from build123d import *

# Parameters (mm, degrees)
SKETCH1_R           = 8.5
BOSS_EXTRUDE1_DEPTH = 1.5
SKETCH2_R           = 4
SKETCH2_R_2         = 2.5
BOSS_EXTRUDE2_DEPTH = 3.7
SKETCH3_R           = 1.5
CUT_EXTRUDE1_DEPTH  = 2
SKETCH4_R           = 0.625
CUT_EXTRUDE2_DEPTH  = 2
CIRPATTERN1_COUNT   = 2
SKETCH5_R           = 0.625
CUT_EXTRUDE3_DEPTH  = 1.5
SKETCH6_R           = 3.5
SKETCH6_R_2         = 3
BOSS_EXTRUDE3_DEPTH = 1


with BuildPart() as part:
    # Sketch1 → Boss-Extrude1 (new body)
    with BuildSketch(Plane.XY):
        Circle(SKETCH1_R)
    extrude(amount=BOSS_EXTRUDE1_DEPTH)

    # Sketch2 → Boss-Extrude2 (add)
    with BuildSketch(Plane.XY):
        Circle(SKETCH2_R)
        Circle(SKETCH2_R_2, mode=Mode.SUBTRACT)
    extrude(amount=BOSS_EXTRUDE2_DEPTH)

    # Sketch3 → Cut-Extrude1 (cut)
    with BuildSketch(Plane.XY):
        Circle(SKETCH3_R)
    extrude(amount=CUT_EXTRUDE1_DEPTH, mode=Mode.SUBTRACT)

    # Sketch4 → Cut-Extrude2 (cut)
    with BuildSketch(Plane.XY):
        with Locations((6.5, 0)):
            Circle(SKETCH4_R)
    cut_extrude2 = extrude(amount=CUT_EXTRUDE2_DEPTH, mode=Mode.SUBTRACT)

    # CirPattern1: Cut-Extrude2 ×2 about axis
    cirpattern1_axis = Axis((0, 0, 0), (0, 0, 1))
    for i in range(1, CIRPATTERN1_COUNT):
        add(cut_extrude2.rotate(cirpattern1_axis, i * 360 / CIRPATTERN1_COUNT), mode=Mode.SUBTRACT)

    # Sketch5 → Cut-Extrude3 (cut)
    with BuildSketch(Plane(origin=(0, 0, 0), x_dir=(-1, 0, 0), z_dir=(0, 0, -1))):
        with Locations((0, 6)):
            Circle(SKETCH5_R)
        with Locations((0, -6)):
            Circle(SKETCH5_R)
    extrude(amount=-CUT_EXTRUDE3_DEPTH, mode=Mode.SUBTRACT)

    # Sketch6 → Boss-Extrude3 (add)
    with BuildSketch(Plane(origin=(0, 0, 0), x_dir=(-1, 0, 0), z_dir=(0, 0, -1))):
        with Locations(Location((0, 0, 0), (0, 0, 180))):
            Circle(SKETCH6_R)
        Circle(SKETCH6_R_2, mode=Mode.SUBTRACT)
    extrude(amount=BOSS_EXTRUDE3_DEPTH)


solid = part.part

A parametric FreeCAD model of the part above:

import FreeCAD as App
import Part
import Sketcher

doc = App.newDocument("Part")
body = doc.addObject("PartDesign::Body", "Body")

# Sketch on XY plane
sketch1 = body.newObject("Sketcher::SketchObject", "Sketch")
sketch1.AttachmentSupport = (doc.getObject("XY_Plane"), [""])
sketch1.MapMode = "FlatFace"
sketch1.addGeometry(Part.Circle(App.Vector(0, 0, 0), App.Vector(0, 0, 1), 8), False)
sketch1.addConstraint([
    Sketcher.Constraint("Coincident", 0, 3, -1, 1),
    Sketcher.Constraint("Diameter", 0, 17.0),
])
pad1 = body.newObject("PartDesign::Pad", "Pad")
pad1.Profile = sketch1
pad1.Length = 1.5

# Sketch on XY plane
sketch2 = body.newObject("Sketcher::SketchObject", "Sketch001")
sketch2.AttachmentSupport = (doc.getObject("XY_Plane"), [""])
sketch2.MapMode = "FlatFace"
sketch2.addGeometry([
    Part.Circle(App.Vector(0, 0, 0), App.Vector(0, 0, 1), 4),
    Part.Circle(App.Vector(0, 0, 0), App.Vector(0, 0, 1), 2.5),
], False)
sketch2.addConstraint([
    Sketcher.Constraint("Coincident", 0, 3, -1, 1),
    Sketcher.Constraint("Coincident", 1, 3, -1, 1),
    Sketcher.Constraint("Diameter", 0, 8.0),
    Sketcher.Constraint("Diameter", 1, 5.0),
])
pad2 = body.newObject("PartDesign::Pad", "Pad001")
pad2.Profile = sketch2
pad2.Length = 3.7

# Sketch on XY plane
sketch3 = body.newObject("Sketcher::SketchObject", "Sketch002")
sketch3.AttachmentSupport = (doc.getObject("XY_Plane"), [""])
sketch3.MapMode = "FlatFace"
sketch3.addGeometry(Part.Circle(App.Vector(0, 0, 0), App.Vector(0, 0, 1), 1.5), False)
sketch3.addConstraint([
    Sketcher.Constraint("Coincident", 0, 3, -1, 1),
    Sketcher.Constraint("Diameter", 0, 3.0),
])
pocket1 = body.newObject("PartDesign::Pocket", "Pocket")
pocket1.Profile = sketch3
pocket1.Length = 2
pocket1.Reversed = True

# Sketch on XY plane
sketch4 = body.newObject("Sketcher::SketchObject", "Sketch003")
sketch4.AttachmentSupport = (doc.getObject("XY_Plane"), [""])
sketch4.MapMode = "FlatFace"
sketch4.addGeometry(Part.Circle(App.Vector(6.5, 0, 0), App.Vector(0, 0, 1), 0.6), False)
sketch4.addConstraint([
    Sketcher.Constraint("PointOnObject", 0, 3, -1),
    Sketcher.Constraint("Diameter", 0, 1.25),
    Sketcher.Constraint("DistanceX", -1, 1, 0, 3, 6.5),
])
pocket2 = body.newObject("PartDesign::Pocket", "Pocket001")
pocket2.Profile = sketch4
pocket2.Length = 2
pocket2.Reversed = True
doc.recompute()

polarpattern = body.newObject("PartDesign::PolarPattern", "PolarPattern")
polarpattern.Originals = [pocket2]
polarpattern.Axis = (doc.getObject("Z_Axis"), [""])
polarpattern.Angle = 360
polarpattern.Occurrences = 2
body.Tip = polarpattern

# Sketch on XY plane
sketch5 = body.newObject("Sketcher::SketchObject", "Sketch004")
sketch5.AttachmentSupport = (doc.getObject("XY_Plane"), [""])
sketch5.MapMode = "FlatFace"
sketch5.addGeometry([
    Part.Circle(App.Vector(0, 6, 0), App.Vector(0, 0, 1), 0.6),
    Part.Circle(App.Vector(0, -6, 0), App.Vector(0, 0, 1), 0.6),
], False)
sketch5.addConstraint([
    Sketcher.Constraint("Equal", 0, 1),
    Sketcher.Constraint("Symmetric", 0, 3, 1, 3, -1, 1),
    Sketcher.Constraint("PointOnObject", 0, 3, -2),
    Sketcher.Constraint("Diameter", 0, 1.25),
    Sketcher.Constraint("DistanceY", -1, 1, 0, 3, 6.0),
])
pocket3 = body.newObject("PartDesign::Pocket", "Pocket002")
pocket3.Profile = sketch5
pocket3.Length = 1.5
pocket3.Reversed = True

# Sketch on XY plane
sketch6 = body.newObject("Sketcher::SketchObject", "Sketch005")
sketch6.AttachmentSupport = (doc.getObject("XY_Plane"), [""])
sketch6.MapMode = "FlatFace"
sketch6.addGeometry([
    Part.Circle(App.Vector(0, 0, 0), App.Vector(0, 0, 1), 3.5),
    Part.Circle(App.Vector(0, 0, 0), App.Vector(0, 0, 1), 3),
], False)
sketch6.addConstraint([
    Sketcher.Constraint("Coincident", 0, 3, -1, 1),
    Sketcher.Constraint("Coincident", 1, 3, -1, 1),
    Sketcher.Constraint("Diameter", 0, 7.0),
    Sketcher.Constraint("Diameter", 1, 6.0),
])
pad3 = body.newObject("PartDesign::Pad", "Pad002")
pad3.Profile = sketch6
pad3.Length = 1
pad3.Reversed = True

doc.recompute()
